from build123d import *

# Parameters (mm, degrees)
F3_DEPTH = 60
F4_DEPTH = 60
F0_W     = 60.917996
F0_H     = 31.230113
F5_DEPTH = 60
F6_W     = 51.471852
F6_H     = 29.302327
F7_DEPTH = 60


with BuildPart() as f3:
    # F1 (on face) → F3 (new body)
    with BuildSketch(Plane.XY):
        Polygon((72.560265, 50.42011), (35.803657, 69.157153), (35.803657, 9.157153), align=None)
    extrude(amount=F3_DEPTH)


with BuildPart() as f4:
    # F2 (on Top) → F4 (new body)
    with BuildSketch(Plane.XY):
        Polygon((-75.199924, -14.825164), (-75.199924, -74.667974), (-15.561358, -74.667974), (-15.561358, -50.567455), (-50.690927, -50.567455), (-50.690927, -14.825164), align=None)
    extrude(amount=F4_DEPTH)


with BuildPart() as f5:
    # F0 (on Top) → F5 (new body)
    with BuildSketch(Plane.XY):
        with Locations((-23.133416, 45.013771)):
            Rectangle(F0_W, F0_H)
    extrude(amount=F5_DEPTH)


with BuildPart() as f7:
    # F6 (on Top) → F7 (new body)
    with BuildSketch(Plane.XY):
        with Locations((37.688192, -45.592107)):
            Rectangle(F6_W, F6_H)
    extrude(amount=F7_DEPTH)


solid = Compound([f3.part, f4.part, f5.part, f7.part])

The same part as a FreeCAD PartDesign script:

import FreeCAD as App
import Part
import Sketcher
from FreeCAD import Vector

doc = App.newDocument("Part")
body = doc.addObject("PartDesign::Body", "Body")

sketch1 = doc.addObject("Sketcher::SketchObject", "Sketch")
body.addObject(sketch1)
sketch1.AttachmentSupport = (doc.XY_Plane, [""])
sketch1.MapMode = "FlatFace"
sketch1.addGeometry([
    Part.LineSegment(Vector(72.560265, 50.42011, 0), Vector(35.803657, 69.157153, 0)),
    Part.LineSegment(Vector(35.803657, 69.157153, 0), Vector(35.803657, 9.157153, 0)),
    Part.LineSegment(Vector(35.803657, 9.157153, 0), Vector(72.560265, 50.42011, 0)),
], False)
sketch1.addConstraint([
    Sketcher.Constraint("Coincident", 0, 2, 1, 1),
    Sketcher.Constraint("Coincident", 1, 2, 2, 1),
    Sketcher.Constraint("Coincident", 2, 2, 0, 1),
    Sketcher.Constraint("Vertical", 1),
    Sketcher.Constraint("DistanceY", 1, 2, 1, 1, 60.0),
    Sketcher.Constraint("Distance", 2, 55.260111),
    Sketcher.Constraint("DistanceY", -1, 1, 2, 2, 50.42011),
    Sketcher.Constraint("Distance", 0, 41.256818),
    Sketcher.Constraint("DistanceX", -1, 1, 0, 2, 35.803657),
])
pad1 = doc.addObject("PartDesign::Pad", "Pad")
body.addObject(pad1)
pad1.Profile = sketch1
pad1.Length = 60
body2 = doc.addObject("PartDesign::Body", "Body001")

sketch2 = doc.addObject("Sketcher::SketchObject", "Sketch001")
body2.addObject(sketch2)
sketch2.AttachmentSupport = (doc.getObject("XY_Plane001"), [""])
sketch2.MapMode = "FlatFace"
sketch2.addGeometry([
    Part.LineSegment(Vector(-75.199924, -14.825164, 0), Vector(-75.199924, -74.667974, 0)),
    Part.LineSegment(Vector(-75.199924, -74.667974, 0), Vector(-15.561358, -74.667974, 0)),
    Part.LineSegment(Vector(-15.561358, -74.667974, 0), Vector(-15.561358, -50.567455, 0)),
    Part.LineSegment(Vector(-15.561358, -50.567455, 0), Vector(-50.690927, -50.567455, 0)),
    Part.LineSegment(Vector(-50.690927, -50.567455, 0), Vector(-50.690927, -14.825164, 0)),
    Part.LineSegment(Vector(-50.690927, -14.825164, 0), Vector(-75.199924, -14.825164, 0)),
], False)
sketch2.addConstraint([
    Sketcher.Constraint("Coincident", 0, 2, 1, 1),
    Sketcher.Constraint("Coincident", 1, 2, 2, 1),
    Sketcher.Constraint("Coincident", 2, 2, 3, 1),
    Sketcher.Constraint("Coincident", 3, 2, 4, 1),
    Sketcher.Constraint("Coincident", 4, 2, 5, 1),
    Sketcher.Constraint("Coincident", 5, 2, 0, 1),
    Sketcher.Constraint("Vertical", 0),
    Sketcher.Constraint("Horizontal", 1),
    Sketcher.Constraint("Vertical", 2),
    Sketcher.Constraint("Horizontal", 3),
    Sketcher.Constraint("Vertical", 4),
    Sketcher.Constraint("Horizontal", 5),
    Sketcher.Constraint("DistanceX", 3, 2, 3, 1, 35.129569),
    Sketcher.Constraint("DistanceY", 0, 2, 0, 1, 59.84281),
    Sketcher.Constraint("DistanceY", 2, 1, 2, 2, 24.100519),
    Sketcher.Constraint("DistanceX", 1, 1, 1, 2, 59.638566),
    Sketcher.Constraint("DistanceX", 0, 2, -1, 1, 75.199924),
    Sketcher.Constraint("DistanceY", 0, 2, -1, 1, 74.667974),
])
pad2 = doc.addObject("PartDesign::Pad", "Pad001")
body2.addObject(pad2)
pad2.Profile = sketch2
pad2.Length = 60
body3 = doc.addObject("PartDesign::Body", "Body002")

sketch3 = doc.addObject("Sketcher::SketchObject", "Sketch002")
body3.addObject(sketch3)
sketch3.AttachmentSupport = (doc.getObject("XY_Plane002"), [""])
sketch3.MapMode = "FlatFace"
sketch3.addGeometry([
    Part.LineSegment(Vector(-53.592414, 60.628827, 0), Vector(-53.592414, 29.398715, 0)),
    Part.LineSegment(Vector(-53.592414, 29.398715, 0), Vector(7.325582, 29.398715, 0)),
    Part.LineSegment(Vector(7.325582, 29.398715, 0), Vector(7.325582, 60.628827, 0)),
    Part.LineSegment(Vector(7.325582, 60.628827, 0), Vector(-53.592414, 60.628827, 0)),
], False)
sketch3.addConstraint([
    Sketcher.Constraint("Coincident", 0, 2, 1, 1),
    Sketcher.Constraint("Coincident", 1, 2, 2, 1),
    Sketcher.Constraint("Coincident", 2, 2, 3, 1),
    Sketcher.Constraint("Coincident", 3, 2, 0, 1),
    Sketcher.Constraint("Vertical", 0),
    Sketcher.Constraint("Horizontal", 1),
    Sketcher.Constraint("Vertical", 2),
    Sketcher.Constraint("Horizontal", 3),
    Sketcher.Constraint("DistanceX", 1, 1, 1, 2, 60.917996),
    Sketcher.Constraint("DistanceY", 0, 2, 0, 1, 31.230113),
    Sketcher.Constraint("DistanceX", -1, 1, 1, 2, 7.325582),
    Sketcher.Constraint("DistanceY", -1, 1, 0, 2, 29.398715),
])
pad3 = doc.addObject("PartDesign::Pad", "Pad002")
body3.addObject(pad3)
pad3.Profile = sketch3
pad3.Length = 60
body4 = doc.addObject("PartDesign::Body", "Body003")

sketch4 = doc.addObject("Sketcher::SketchObject", "Sketch003")
body4.addObject(sketch4)
sketch4.AttachmentSupport = (doc.getObject("XY_Plane003"), [""])
sketch4.MapMode = "FlatFace"
sketch4.addGeometry([
    Part.LineSegment(Vector(11.952266, -30.940943, 0), Vector(11.952266, -60.243271, 0)),
    Part.LineSegment(Vector(11.952266, -60.243271, 0), Vector(63.424118, -60.243271, 0)),
    Part.LineSegment(Vector(63.424118, -60.243271, 0), Vector(63.424118, -30.940943, 0)),
    Part.LineSegment(Vector(63.424118, -30.940943, 0), Vector(11.952266, -30.940943, 0)),
], False)
sketch4.addConstraint([
    Sketcher.Constraint("Coincident", 0, 2, 1, 1),
    Sketcher.Constraint("Coincident", 1, 2, 2, 1),
    Sketcher.Constraint("Coincident", 2, 2, 3, 1),
    Sketcher.Constraint("Coincident", 3, 2, 0, 1),
    Sketcher.Constraint("Vertical", 0),
    Sketcher.Constraint("Horizontal", 1),
    Sketcher.Constraint("Vertical", 2),
    Sketcher.Constraint("Horizontal", 3),
    Sketcher.Constraint("DistanceX", 1, 1, 1, 2, 51.471852),
    Sketcher.Constraint("DistanceY", 0, 2, 0, 1, 29.302327),
    Sketcher.Constraint("DistanceY", 0, 2, -1, 1, 60.243271),
    Sketcher.Constraint("DistanceX", -1, 1, 0, 2, 11.952266),
])
pad4 = doc.addObject("PartDesign::Pad", "Pad003")
body4.addObject(pad4)
pad4.Profile = sketch4
pad4.Length = 60

doc.recompute()
